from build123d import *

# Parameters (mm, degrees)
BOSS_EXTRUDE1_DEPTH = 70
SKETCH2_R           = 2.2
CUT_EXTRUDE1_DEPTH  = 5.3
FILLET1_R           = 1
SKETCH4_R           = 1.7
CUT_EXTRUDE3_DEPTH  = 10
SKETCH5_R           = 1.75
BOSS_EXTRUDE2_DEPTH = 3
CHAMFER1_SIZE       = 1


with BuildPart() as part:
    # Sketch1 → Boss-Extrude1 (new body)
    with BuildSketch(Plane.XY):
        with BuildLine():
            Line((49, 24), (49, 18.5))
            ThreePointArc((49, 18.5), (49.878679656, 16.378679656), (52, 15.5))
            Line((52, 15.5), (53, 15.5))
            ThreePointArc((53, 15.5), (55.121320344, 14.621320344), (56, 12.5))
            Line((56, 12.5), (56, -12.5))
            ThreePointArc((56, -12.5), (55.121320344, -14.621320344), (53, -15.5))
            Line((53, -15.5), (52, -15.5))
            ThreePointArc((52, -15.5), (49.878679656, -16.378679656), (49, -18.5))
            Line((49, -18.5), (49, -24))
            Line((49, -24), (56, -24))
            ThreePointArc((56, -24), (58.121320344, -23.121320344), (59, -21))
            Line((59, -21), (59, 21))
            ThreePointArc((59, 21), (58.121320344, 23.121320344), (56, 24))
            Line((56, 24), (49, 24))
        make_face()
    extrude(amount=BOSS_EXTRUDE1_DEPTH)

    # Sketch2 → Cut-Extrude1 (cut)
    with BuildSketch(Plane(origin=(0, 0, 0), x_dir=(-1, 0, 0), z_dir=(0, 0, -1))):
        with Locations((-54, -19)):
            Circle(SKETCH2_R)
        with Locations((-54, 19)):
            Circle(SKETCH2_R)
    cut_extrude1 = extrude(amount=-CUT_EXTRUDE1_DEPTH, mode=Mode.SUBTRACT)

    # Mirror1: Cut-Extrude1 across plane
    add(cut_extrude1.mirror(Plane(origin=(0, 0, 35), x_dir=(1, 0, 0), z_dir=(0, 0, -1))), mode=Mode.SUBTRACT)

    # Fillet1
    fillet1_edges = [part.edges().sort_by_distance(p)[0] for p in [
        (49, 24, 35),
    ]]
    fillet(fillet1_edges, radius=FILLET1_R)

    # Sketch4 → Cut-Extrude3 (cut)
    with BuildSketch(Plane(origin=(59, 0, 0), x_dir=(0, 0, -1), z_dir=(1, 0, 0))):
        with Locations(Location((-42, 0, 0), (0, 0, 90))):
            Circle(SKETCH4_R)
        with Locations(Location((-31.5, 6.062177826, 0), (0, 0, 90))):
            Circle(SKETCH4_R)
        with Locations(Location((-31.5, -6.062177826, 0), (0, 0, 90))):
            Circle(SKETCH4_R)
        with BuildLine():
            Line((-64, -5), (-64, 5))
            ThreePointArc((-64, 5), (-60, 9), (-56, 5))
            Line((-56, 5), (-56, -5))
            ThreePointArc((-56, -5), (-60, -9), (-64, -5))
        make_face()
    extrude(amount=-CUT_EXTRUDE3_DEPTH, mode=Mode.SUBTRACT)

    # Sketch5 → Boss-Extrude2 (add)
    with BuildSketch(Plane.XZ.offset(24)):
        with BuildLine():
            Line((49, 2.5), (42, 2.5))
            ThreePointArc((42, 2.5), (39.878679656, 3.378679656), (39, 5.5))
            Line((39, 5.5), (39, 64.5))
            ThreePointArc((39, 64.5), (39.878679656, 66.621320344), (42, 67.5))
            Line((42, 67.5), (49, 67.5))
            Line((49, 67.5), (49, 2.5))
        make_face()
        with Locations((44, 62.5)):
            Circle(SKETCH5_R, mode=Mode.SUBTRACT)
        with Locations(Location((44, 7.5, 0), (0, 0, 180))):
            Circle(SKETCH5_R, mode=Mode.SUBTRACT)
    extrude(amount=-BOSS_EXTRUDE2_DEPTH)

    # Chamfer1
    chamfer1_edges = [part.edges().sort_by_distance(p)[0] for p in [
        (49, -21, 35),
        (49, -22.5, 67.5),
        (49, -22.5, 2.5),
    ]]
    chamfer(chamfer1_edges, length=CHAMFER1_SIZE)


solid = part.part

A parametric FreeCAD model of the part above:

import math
import FreeCAD as App
import Part
import Sketcher

V = App.Vector


def edges_at(feature, points):
    """Names of the edges that pass closest to the given points."""
    edges = feature.Shape.Edges
    near = lambda p: min(range(len(edges)), key=lambda i: edges[i].distToShape(Part.Vertex(*p))[0])
    return sorted({f"Edge{near(p) + 1}" for p in points})

doc = App.newDocument("Part")
body = doc.addObject("PartDesign::Body", "Body")

# Sketch on XY plane
sketch1 = body.newObject("Sketcher::SketchObject", "Sketch")
sketch1.AttachmentSupport = (doc.getObject("XY_Plane"), [""])
sketch1.MapMode = "FlatFace"
sketch1.addGeometry([
    Part.LineSegment(V(49, 24, 0), V(49, 18.5, 0)),  # 0
    Part.ArcOfCircle(Part.Circle(V(52, 18.5, 0), V(0, 0, 1), 3), math.radians(180), math.radians(270)),  # 1
    Part.LineSegment(V(52, 15.5, 0), V(53, 15.5, 0)),  # 2
    Part.ArcOfCircle(Part.Circle(V(53, 12.5, 0), V(0, 0, 1), 3), math.radians(0), math.radians(90)),  # 3
    Part.LineSegment(V(56, 12.5, 0), V(56, -12.5, 0)),  # 4
    Part.ArcOfCircle(Part.Circle(V(53, -12.5, 0), V(0, 0, 1), 3), math.radians(-90), math.radians(0)),  # 5
    Part.LineSegment(V(53, -15.5, 0), V(52, -15.5, 0)),  # 6
    Part.ArcOfCircle(Part.Circle(V(52, -18.5, 0), V(0, 0, 1), 3), math.radians(90), math.radians(180)),  # 7
    Part.LineSegment(V(49, -18.5, 0), V(49, -24, 0)),  # 8
    Part.LineSegment(V(49, -24, 0), V(56, -24, 0)),  # 9
    Part.ArcOfCircle(Part.Circle(V(56, -21, 0), V(0, 0, 1), 3), math.radians(-90), math.radians(0)),  # 10
    Part.LineSegment(V(59, -21, 0), V(59, 21, 0)),  # 11
    Part.ArcOfCircle(Part.Circle(V(56, 21, 0), V(0, 0, 1), 3), math.radians(0), math.radians(90)),  # 12
    Part.LineSegment(V(56, 24, 0), V(49, 24, 0)),  # 13
], False)
sketch1.addConstraint([
    Sketcher.Constraint("Tangent", 0, 2, 1, 1),
    Sketcher.Constraint("Tangent", 1, 2, 2, 1),
    Sketcher.Constraint("Tangent", 2, 2, 3, 2),
    Sketcher.Constraint("Tangent", 3, 1, 4, 1),
    Sketcher.Constraint("Tangent", 4, 2, 5, 2),
    Sketcher.Constraint("Tangent", 5, 1, 6, 1),
    Sketcher.Constraint("Tangent", 6, 2, 7, 1),
    Sketcher.Constraint("Tangent", 7, 2, 8, 1),
    Sketcher.Constraint("Coincident", 8, 2, 9, 1),
    Sketcher.Constraint("Tangent", 9, 2, 10, 1),
    Sketcher.Constraint("Tangent", 10, 2, 11, 1),
    Sketcher.Constraint("Tangent", 11, 2, 12, 1),
    Sketcher.Constraint("Tangent", 12, 2, 13, 1),
    Sketcher.Constraint("Coincident", 13, 2, 0, 1),
    Sketcher.Constraint("Vertical", 0),
    Sketcher.Constraint("Horizontal", 2),
    Sketcher.Constraint("Vertical", 4),
    Sketcher.Constraint("Horizontal", 6),
    Sketcher.Constraint("Vertical", 8),
    Sketcher.Constraint("Horizontal", 9),
    Sketcher.Constraint("Vertical", 11),
    Sketcher.Constraint("Horizontal", 13),
    Sketcher.Constraint("Equal", 1, 3),
    Sketcher.Constraint("Equal", 3, 5),
    Sketcher.Constraint("Equal", 5, 7),
    Sketcher.Constraint("Equal", 7, 10),
    Sketcher.Constraint("Equal", 10, 12),
    Sketcher.Constraint("Symmetric", 1, 3, 7, 3, -1),
    Sketcher.Constraint("Vertical", 12, 3, 3, 1),
    Sketcher.Constraint("Equal", 0, 8),
    Sketcher.Constraint("Radius", 1, 3.0),
    Sketcher.Constraint("DistanceX", 2, 1, 2, 2, 1.0),
    Sketcher.Constraint("DistanceY", 4, 2, 4, 1, 25.0),
    Sketcher.Constraint("DistanceY", 11, 1, 11, 2, 42.0),
    Sketcher.Constraint("DistanceX", -1, 1, 1, 3, 52.0),
])
pad1 = body.newObject("PartDesign::Pad", "Pad")
pad1.Profile = sketch1
pad1.Length = 70

# Sketch on XY plane
sketch2 = body.newObject("Sketcher::SketchObject", "Sketch001")
sketch2.AttachmentSupport = (doc.getObject("XY_Plane"), [""])
sketch2.MapMode = "FlatFace"
sketch2.addGeometry([
    Part.Circle(V(54, -19, 0), V(0, 0, 1), 2.2),
    Part.Circle(V(54, 19, 0), V(0, 0, 1), 2.2),
], False)
sketch2.addConstraint([
    Sketcher.Constraint("Equal", 0, 1),
    Sketcher.Constraint("Symmetric", 0, 3, 1, 3, -1),
    Sketcher.Constraint("Diameter", 0, 4.4),
    Sketcher.Constraint("DistanceX", -1, 1, 0, 3, 54.0),
    Sketcher.Constraint("DistanceY", 0, 3, -1, 1, 19.0),
])
pocket1 = body.newObject("PartDesign::Pocket", "Pocket")
pocket1.Profile = sketch2
pocket1.Length = 5.3
pocket1.Reversed = True
doc.recompute()

datumplane = body.newObject("PartDesign::Plane", "DatumPlane")
datumplane.AttachmentSupport = (doc.getObject("XY_Plane"), [""])
datumplane.MapMode = "FlatFace"
datumplane.AttachmentOffset = App.Placement(V(0, 0, 35), App.Rotation())
mirrored = body.newObject("PartDesign::Mirrored", "Mirrored")
mirrored.Originals = [pocket1]
mirrored.MirrorPlane = (datumplane, [""])
body.Tip = mirrored
doc.recompute()

fillet = body.newObject("PartDesign::Fillet", "Fillet")
fillet.Base = (mirrored, edges_at(mirrored, [(49, 24, 35)]))
fillet.Radius = 1

# Sketch on YZ plane
sketch3 = body.newObject("Sketcher::SketchObject", "Sketch002")
sketch3.AttachmentSupport = (doc.getObject("YZ_Plane"), [""])
sketch3.MapMode = "FlatFace"
sketch3.AttachmentOffset = App.Placement(V(0, 0, 59), App.Rotation())
sketch3.addGeometry([
    Part.Circle(V(0, 42, 0), V(0, 0, 1), 1.7),  # 0
    Part.Circle(V(6.1, 31.5, 0), V(0, 0, 1), 1.7),  # 1
    Part.Circle(V(-6.1, 31.5, 0), V(0, 0, 1), 1.7),  # 2
    Part.LineSegment(V(5, 64, 0), V(-5, 64, 0)),  # 3
    Part.ArcOfCircle(Part.Circle(V(-5, 60, 0), V(0, 0, 1), 4), math.radians(90), math.radians(270)),  # 4
    Part.LineSegment(V(-5, 56, 0), V(5, 56, 0)),  # 5
    Part.ArcOfCircle(Part.Circle(V(5, 60, 0), V(0, 0, 1), 4), math.radians(-90), math.radians(90)),  # 6
], False)
sketch3.addConstraint([
    Sketcher.Constraint("Tangent", 3, 2, 4, 1),
    Sketcher.Constraint("Tangent", 4, 2, 5, 1),
    Sketcher.Constraint("Tangent", 5, 2, 6, 1),
    Sketcher.Constraint("Tangent", 6, 2, 3, 1),
    Sketcher.Constraint("Horizontal", 3),
    Sketcher.Constraint("Horizontal", 5),
    Sketcher.Constraint("Equal", 0, 1),
    Sketcher.Constraint("Equal", 1, 2),
    Sketcher.Constraint("Symmetric", 1, 3, 2, 3, -2),
    Sketcher.Constraint("PointOnObject", 0, 3, -2),
    Sketcher.Constraint("Radius", 4, 4.0),
    Sketcher.Constraint("Diameter", 0, 3.4),
    Sketcher.Constraint("DistanceX", 3, 2, 3, 1, 10.0),
    Sketcher.Constraint("DistanceY", -1, 1, 0, 3, 42.0),
    Sketcher.Constraint("DistanceX", 4, 3, -1, 1, 5.0),
    Sketcher.Constraint("DistanceY", -1, 1, 4, 3, 60.0),
    Sketcher.Constraint("DistanceY", -1, 1, 1, 3, 31.5),
    Sketcher.Constraint("DistanceX", -1, 1, 1, 3, 6.062178),
])
pocket2 = body.newObject("PartDesign::Pocket", "Pocket001")
pocket2.Profile = sketch3
pocket2.Length = 10

# Sketch on XZ plane
sketch4 = body.newObject("Sketcher::SketchObject", "Sketch003")
sketch4.AttachmentSupport = (doc.getObject("XZ_Plane"), [""])
sketch4.MapMode = "FlatFace"
sketch4.AttachmentOffset = App.Placement(V(0, 0, 24), App.Rotation())
sketch4.addGeometry([
    Part.LineSegment(V(42, 2.5, 0), V(49, 2.5, 0)),  # 0
    Part.LineSegment(V(49, 2.5, 0), V(49, 67.5, 0)),  # 1
    Part.LineSegment(V(49, 67.5, 0), V(42, 67.5, 0)),  # 2
    Part.ArcOfCircle(Part.Circle(V(42, 64.5, 0), V(0, 0, 1), 3), math.radians(90), math.radians(180)),  # 3
    Part.LineSegment(V(39, 64.5, 0), V(39, 5.5, 0)),  # 4
    Part.ArcOfCircle(Part.Circle(V(42, 5.5, 0), V(0, 0, 1), 3), math.radians(180), math.radians(270)),  # 5
    Part.Circle(V(44, 7.5, 0), V(0, 0, 1), 1.8),  # 6
    Part.Circle(V(44, 62.5, 0), V(0, 0, 1), 1.8),  # 7
], False)
sketch4.addConstraint([
    Sketcher.Constraint("Coincident", 0, 2, 1, 1),
    Sketcher.Constraint("Coincident", 1, 2, 2, 1),
    Sketcher.Constraint("Tangent", 2, 2, 3, 1),
    Sketcher.Constraint("Tangent", 3, 2, 4, 1),
    Sketcher.Constraint("Tangent", 4, 2, 5, 1),
    Sketcher.Constraint("Tangent", 5, 2, 0, 1),
    Sketcher.Constraint("Horizontal", 0),
    Sketcher.Constraint("Vertical", 1),
    Sketcher.Constraint("Horizontal", 2),
    Sketcher.Constraint("Vertical", 4),
    Sketcher.Constraint("Equal", 3, 5),
    Sketcher.Constraint("Equal", 6, 7),
    Sketcher.Constraint("Vertical", 6, 3, 7, 3),
    Sketcher.Constraint("Radius", 3, 3.0),
    Sketcher.Constraint("Diameter", 6, 3.5),
    Sketcher.Constraint("DistanceX", 0, 1, 0, 2, 7.0),
    Sketcher.Constraint("DistanceY", 1, 1, 1, 2, 65.0),
    Sketcher.Constraint("DistanceX", -1, 1, 3, 3, 42.0),
    Sketcher.Constraint("DistanceX", -1, 1, 6, 3, 44.0),
    Sketcher.Constraint("DistanceY", 5, 3, 6, 3, 2.0),
    Sketcher.Constraint("DistanceY", 7, 3, 3, 3, 2.0),
    Sketcher.Constraint("DistanceY", -1, 1, 3, 3, 64.5),
])
pad2 = body.newObject("PartDesign::Pad", "Pad001")
pad2.Profile = sketch4
pad2.Length = 3
pad2.Reversed = True
doc.recompute()

chamfer = body.newObject("PartDesign::Chamfer", "Chamfer")
chamfer.Base = (pad2, edges_at(pad2, [(49, -21, 35), (49, -22.5, 67.5), (49, -22.5, 2.5)]))
chamfer.Size = 1

doc.recompute()
